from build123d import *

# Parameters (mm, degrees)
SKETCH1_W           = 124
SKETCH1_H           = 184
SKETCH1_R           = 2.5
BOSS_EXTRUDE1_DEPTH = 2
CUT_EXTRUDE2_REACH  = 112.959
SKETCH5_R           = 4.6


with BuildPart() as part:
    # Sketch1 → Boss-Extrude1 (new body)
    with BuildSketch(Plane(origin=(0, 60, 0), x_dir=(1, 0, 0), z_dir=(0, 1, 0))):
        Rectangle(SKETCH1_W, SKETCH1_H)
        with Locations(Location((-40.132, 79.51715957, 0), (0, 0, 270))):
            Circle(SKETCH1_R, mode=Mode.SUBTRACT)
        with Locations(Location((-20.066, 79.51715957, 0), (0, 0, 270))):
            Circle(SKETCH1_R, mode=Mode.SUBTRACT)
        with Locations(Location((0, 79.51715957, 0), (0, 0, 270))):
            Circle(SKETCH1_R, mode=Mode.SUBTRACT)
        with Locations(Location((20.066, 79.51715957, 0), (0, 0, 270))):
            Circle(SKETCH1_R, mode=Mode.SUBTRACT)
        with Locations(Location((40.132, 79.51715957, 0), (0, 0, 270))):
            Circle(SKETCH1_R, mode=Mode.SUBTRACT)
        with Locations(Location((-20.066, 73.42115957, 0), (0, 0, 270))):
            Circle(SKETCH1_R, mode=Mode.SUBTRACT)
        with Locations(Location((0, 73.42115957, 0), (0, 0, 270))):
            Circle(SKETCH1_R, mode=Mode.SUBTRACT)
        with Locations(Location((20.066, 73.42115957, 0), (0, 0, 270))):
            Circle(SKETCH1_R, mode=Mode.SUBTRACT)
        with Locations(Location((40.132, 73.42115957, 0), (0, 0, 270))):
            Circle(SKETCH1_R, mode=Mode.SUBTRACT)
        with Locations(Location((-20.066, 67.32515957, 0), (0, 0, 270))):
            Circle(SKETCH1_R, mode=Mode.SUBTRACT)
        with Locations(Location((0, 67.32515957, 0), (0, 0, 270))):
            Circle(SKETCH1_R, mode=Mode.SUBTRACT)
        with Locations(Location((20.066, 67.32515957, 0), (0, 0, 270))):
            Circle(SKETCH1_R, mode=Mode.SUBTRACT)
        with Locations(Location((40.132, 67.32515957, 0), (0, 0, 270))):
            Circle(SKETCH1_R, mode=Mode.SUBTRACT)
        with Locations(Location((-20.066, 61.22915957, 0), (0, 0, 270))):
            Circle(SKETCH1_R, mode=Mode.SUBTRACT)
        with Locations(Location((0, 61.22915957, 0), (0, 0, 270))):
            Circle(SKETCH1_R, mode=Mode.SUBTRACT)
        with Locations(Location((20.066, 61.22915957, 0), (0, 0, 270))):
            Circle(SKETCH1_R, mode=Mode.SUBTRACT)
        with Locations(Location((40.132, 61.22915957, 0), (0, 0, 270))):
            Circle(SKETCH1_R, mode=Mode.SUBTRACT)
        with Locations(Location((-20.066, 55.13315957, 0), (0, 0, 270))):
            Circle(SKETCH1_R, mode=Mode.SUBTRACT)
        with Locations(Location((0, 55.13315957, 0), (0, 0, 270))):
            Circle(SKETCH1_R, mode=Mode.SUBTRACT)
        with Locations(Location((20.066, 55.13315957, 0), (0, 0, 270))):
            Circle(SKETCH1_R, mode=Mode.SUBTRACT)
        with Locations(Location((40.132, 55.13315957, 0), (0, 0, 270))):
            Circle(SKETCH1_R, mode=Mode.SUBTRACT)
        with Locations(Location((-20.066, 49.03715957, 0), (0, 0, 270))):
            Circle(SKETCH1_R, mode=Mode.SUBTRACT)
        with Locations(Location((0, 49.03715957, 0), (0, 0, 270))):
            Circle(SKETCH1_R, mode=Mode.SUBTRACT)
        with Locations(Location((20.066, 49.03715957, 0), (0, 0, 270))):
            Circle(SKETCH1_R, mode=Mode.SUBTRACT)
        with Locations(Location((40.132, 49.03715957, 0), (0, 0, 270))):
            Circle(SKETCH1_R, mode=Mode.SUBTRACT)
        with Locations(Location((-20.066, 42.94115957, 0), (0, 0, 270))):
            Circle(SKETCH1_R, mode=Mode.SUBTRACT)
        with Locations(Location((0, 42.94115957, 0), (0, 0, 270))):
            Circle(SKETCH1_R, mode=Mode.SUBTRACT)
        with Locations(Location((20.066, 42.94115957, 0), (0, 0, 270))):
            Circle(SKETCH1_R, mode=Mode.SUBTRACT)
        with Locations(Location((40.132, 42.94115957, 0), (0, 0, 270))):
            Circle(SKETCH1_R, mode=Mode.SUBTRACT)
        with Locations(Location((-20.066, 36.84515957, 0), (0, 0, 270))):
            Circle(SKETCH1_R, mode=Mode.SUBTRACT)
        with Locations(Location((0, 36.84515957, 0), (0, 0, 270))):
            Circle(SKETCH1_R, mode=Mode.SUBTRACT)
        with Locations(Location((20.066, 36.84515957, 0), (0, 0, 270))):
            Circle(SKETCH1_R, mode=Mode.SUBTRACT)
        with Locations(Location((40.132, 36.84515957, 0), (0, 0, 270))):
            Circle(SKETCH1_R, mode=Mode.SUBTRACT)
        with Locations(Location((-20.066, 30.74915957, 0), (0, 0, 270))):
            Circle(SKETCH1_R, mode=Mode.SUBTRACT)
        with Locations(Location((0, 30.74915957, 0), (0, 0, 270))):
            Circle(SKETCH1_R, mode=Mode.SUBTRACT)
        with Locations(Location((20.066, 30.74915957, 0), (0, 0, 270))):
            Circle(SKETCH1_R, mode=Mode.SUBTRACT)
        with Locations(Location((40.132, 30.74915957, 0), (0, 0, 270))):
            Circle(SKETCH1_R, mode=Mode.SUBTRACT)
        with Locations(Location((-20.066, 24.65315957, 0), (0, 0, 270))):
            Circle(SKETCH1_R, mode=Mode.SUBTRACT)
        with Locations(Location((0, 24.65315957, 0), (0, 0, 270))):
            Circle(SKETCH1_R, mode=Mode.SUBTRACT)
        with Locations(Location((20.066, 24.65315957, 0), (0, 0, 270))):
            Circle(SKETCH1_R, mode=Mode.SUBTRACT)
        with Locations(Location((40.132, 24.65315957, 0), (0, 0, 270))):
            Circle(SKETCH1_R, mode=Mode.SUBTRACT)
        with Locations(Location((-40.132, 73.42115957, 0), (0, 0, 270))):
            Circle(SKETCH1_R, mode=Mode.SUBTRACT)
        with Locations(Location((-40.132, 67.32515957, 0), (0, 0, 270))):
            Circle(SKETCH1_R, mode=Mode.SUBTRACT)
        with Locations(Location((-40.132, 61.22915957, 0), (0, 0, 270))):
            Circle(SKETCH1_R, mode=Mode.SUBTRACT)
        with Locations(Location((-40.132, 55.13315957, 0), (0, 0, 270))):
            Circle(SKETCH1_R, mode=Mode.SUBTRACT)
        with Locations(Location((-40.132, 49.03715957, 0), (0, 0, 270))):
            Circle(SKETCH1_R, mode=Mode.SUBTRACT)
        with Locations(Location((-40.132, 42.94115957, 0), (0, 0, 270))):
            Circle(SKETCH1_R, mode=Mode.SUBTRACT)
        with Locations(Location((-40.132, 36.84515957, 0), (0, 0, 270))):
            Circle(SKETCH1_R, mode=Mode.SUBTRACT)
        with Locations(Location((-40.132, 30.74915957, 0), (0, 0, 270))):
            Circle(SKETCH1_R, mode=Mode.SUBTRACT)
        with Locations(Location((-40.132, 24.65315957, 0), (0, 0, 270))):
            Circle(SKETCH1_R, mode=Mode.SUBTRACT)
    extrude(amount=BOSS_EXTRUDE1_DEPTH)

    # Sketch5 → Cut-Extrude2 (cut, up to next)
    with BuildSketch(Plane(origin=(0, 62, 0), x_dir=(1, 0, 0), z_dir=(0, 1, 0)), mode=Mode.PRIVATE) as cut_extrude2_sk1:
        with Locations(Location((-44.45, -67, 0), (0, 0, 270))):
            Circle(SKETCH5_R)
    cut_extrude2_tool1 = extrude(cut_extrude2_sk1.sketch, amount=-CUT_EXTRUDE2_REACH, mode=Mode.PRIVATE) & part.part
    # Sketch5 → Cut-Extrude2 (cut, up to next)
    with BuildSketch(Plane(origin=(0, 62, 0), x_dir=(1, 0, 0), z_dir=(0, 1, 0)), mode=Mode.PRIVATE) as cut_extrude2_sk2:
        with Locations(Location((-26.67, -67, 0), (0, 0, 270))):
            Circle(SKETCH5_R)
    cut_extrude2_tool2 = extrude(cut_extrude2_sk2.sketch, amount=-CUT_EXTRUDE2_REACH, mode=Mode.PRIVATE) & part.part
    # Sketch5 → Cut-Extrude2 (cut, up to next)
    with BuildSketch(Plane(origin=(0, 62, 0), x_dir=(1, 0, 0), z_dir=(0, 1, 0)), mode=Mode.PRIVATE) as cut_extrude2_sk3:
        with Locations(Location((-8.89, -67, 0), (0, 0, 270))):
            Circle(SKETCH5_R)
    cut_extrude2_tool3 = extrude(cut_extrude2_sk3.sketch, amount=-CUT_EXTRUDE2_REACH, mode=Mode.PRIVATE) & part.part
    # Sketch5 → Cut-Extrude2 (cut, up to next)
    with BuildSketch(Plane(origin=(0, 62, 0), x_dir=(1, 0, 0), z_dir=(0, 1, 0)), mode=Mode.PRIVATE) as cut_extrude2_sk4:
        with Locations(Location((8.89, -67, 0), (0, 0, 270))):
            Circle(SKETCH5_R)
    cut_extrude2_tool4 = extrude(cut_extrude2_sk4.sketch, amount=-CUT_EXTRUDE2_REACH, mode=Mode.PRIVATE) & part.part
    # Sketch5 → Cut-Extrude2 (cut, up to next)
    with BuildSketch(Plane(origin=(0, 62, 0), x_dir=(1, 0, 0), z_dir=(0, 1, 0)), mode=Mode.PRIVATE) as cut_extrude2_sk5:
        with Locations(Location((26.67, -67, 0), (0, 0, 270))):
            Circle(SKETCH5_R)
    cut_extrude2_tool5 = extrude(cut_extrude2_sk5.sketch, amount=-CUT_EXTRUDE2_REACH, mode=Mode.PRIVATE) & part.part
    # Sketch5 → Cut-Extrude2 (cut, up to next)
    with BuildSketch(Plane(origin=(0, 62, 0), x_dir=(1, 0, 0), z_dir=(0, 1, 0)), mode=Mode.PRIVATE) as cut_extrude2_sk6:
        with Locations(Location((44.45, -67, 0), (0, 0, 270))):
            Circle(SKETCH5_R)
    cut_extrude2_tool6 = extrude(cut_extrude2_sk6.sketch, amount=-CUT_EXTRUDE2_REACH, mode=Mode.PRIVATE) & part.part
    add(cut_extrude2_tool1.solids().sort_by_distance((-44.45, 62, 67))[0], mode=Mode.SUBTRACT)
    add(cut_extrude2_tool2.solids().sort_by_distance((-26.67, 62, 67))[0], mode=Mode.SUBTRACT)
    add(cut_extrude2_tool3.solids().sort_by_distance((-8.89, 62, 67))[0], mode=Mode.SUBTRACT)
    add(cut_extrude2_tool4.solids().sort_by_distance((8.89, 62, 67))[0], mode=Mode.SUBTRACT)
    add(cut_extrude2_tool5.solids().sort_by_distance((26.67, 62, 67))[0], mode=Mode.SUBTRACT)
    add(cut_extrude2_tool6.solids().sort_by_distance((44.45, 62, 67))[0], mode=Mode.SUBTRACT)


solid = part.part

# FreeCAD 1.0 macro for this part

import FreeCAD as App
import Part
import Sketcher
from FreeCAD import Vector


def add_polygon(sketch, points):
    """Adds a closed chain of lines whose ends are joined by coincident constraints."""
    first, n = sketch.GeometryCount, len(points)
    for a, b in zip(points, points[1:] + points[:1]):
        sketch.addGeometry(Part.LineSegment(App.Vector(*a, 0), App.Vector(*b, 0)), False)
    for i in range(n):
        sketch.addConstraint(Sketcher.Constraint("Coincident", first + i, 2, first + (i + 1) % n, 1))

doc = App.newDocument("Part")
body = doc.addObject("PartDesign::Body", "Body")

sketch1 = doc.addObject("Sketcher::SketchObject", "Sketch")
body.addObject(sketch1)
sketch1.AttachmentSupport = (doc.XZ_Plane, [""])
sketch1.MapMode = "FlatFace"
sketch1.AttachmentOffset = App.Placement(Vector(0, 0, -60), App.Rotation())
add_polygon(sketch1, [(-62, -92), (-62, 92), (62, 92), (62, -92)])
sketch1.addGeometry(Part.Circle(Vector(-40.1, -24.7, 0), Vector(0, 0, 1), 2.5), False)
sketch1.addGeometry(Part.Circle(Vector(-40.1, -30.7, 0), Vector(0, 0, 1), 2.5), False)
sketch1.addGeometry(Part.Circle(Vector(-40.1, -36.8, 0), Vector(0, 0, 1), 2.5), False)
sketch1.addGeometry(Part.Circle(Vector(-20.1, -24.7, 0), Vector(0, 0, 1), 2.5), False)
sketch1.addGeometry(Part.Circle(Vector(0, -24.7, 0), Vector(0, 0, 1), 2.5), False)
sketch1.addGeometry(Part.Circle(Vector(-20.1, -30.7, 0), Vector(0, 0, 1), 2.5), False)
sketch1.addGeometry(Part.Circle(Vector(-20.1, -36.8, 0), Vector(0, 0, 1), 2.5), False)
sketch1.addGeometry(Part.Circle(Vector(0, -30.7, 0), Vector(0, 0, 1), 2.5), False)
sketch1.addGeometry(Part.Circle(Vector(0, -36.8, 0), Vector(0, 0, 1), 2.5), False)
sketch1.addGeometry(Part.Circle(Vector(-40.1, -42.9, 0), Vector(0, 0, 1), 2.5), False)
sketch1.addGeometry(Part.Circle(Vector(-40.1, -49, 0), Vector(0, 0, 1), 2.5), False)
sketch1.addGeometry(Part.Circle(Vector(-20.1, -42.9, 0), Vector(0, 0, 1), 2.5), False)
sketch1.addGeometry(Part.Circle(Vector(0, -42.9, 0), Vector(0, 0, 1), 2.5), False)
sketch1.addGeometry(Part.Circle(Vector(-20.1, -49, 0), Vector(0, 0, 1), 2.5), False)
sketch1.addGeometry(Part.Circle(Vector(0, -49, 0), Vector(0, 0, 1), 2.5), False)
sketch1.addGeometry(Part.Circle(Vector(20.1, -24.7, 0), Vector(0, 0, 1), 2.5), False)
sketch1.addGeometry(Part.Circle(Vector(20.1, -30.7, 0), Vector(0, 0, 1), 2.5), False)
sketch1.addGeometry(Part.Circle(Vector(20.1, -36.8, 0), Vector(0, 0, 1), 2.5), False)
sketch1.addGeometry(Part.Circle(Vector(40.1, -24.7, 0), Vector(0, 0, 1), 2.5), False)
sketch1.addGeometry(Part.Circle(Vector(40.1, -30.7, 0), Vector(0, 0, 1), 2.5), False)
sketch1.addGeometry(Part.Circle(Vector(40.1, -36.8, 0), Vector(0, 0, 1), 2.5), False)
sketch1.addGeometry(Part.Circle(Vector(20.1, -42.9, 0), Vector(0, 0, 1), 2.5), False)
sketch1.addGeometry(Part.Circle(Vector(20.1, -49, 0), Vector(0, 0, 1), 2.5), False)
sketch1.addGeometry(Part.Circle(Vector(40.1, -42.9, 0), Vector(0, 0, 1), 2.5), False)
sketch1.addGeometry(Part.Circle(Vector(40.1, -49, 0), Vector(0, 0, 1), 2.5), False)
sketch1.addGeometry(Part.Circle(Vector(-40.1, -55.1, 0), Vector(0, 0, 1), 2.5), False)
sketch1.addGeometry(Part.Circle(Vector(-40.1, -61.2, 0), Vector(0, 0, 1), 2.5), False)
sketch1.addGeometry(Part.Circle(Vector(-20.1, -55.1, 0), Vector(0, 0, 1), 2.5), False)
sketch1.addGeometry(Part.Circle(Vector(0, -55.1, 0), Vector(0, 0, 1), 2.5), False)
sketch1.addGeometry(Part.Circle(Vector(-20.1, -61.2, 0), Vector(0, 0, 1), 2.5), False)
sketch1.addGeometry(Part.Circle(Vector(0, -61.2, 0), Vector(0, 0, 1), 2.5), False)
sketch1.addGeometry(Part.Circle(Vector(-40.1, -67.3, 0), Vector(0, 0, 1), 2.5), False)
sketch1.addGeometry(Part.Circle(Vector(-40.1, -73.4, 0), Vector(0, 0, 1), 2.5), False)
sketch1.addGeometry(Part.Circle(Vector(-40.1, -79.5, 0), Vector(0, 0, 1), 2.5), False)
sketch1.addGeometry(Part.Circle(Vector(-20.1, -67.3, 0), Vector(0, 0, 1), 2.5), False)
sketch1.addGeometry(Part.Circle(Vector(-20.1, -73.4, 0), Vector(0, 0, 1), 2.5), False)
sketch1.addGeometry(Part.Circle(Vector(0, -67.3, 0), Vector(0, 0, 1), 2.5), False)
sketch1.addGeometry(Part.Circle(Vector(0, -73.4, 0), Vector(0, 0, 1), 2.5), False)
sketch1.addGeometry(Part.Circle(Vector(-20.1, -79.5, 0), Vector(0, 0, 1), 2.5), False)
sketch1.addGeometry(Part.Circle(Vector(0, -79.5, 0), Vector(0, 0, 1), 2.5), False)
sketch1.addGeometry(Part.Circle(Vector(20.1, -55.1, 0), Vector(0, 0, 1), 2.5), False)
sketch1.addGeometry(Part.Circle(Vector(20.1, -61.2, 0), Vector(0, 0, 1), 2.5), False)
sketch1.addGeometry(Part.Circle(Vector(40.1, -55.1, 0), Vector(0, 0, 1), 2.5), False)
sketch1.addGeometry(Part.Circle(Vector(40.1, -61.2, 0), Vector(0, 0, 1), 2.5), False)
sketch1.addGeometry(Part.Circle(Vector(20.1, -67.3, 0), Vector(0, 0, 1), 2.5), False)
sketch1.addGeometry(Part.Circle(Vector(20.1, -73.4, 0), Vector(0, 0, 1), 2.5), False)
sketch1.addGeometry(Part.Circle(Vector(20.1, -79.5, 0), Vector(0, 0, 1), 2.5), False)
sketch1.addGeometry(Part.Circle(Vector(40.1, -67.3, 0), Vector(0, 0, 1), 2.5), False)
sketch1.addGeometry(Part.Circle(Vector(40.1, -73.4, 0), Vector(0, 0, 1), 2.5), False)
sketch1.addGeometry(Part.Circle(Vector(40.1, -79.5, 0), Vector(0, 0, 1), 2.5), False)
sketch1.addConstraint(Sketcher.Constraint("Vertical", 0))
sketch1.addConstraint(Sketcher.Constraint("Horizontal", 1))
sketch1.addConstraint(Sketcher.Constraint("Vertical", 2))
sketch1.addConstraint(Sketcher.Constraint("Horizontal", 3))
sketch1.addConstraint(Sketcher.Constraint("Equal", 4, 5))
sketch1.addConstraint(Sketcher.Constraint("Equal", 5, 6))
sketch1.addConstraint(Sketcher.Constraint("Equal", 6, 7))
sketch1.addConstraint(Sketcher.Constraint("Equal", 7, 8))
sketch1.addConstraint(Sketcher.Constraint("Equal", 8, 9))
sketch1.addConstraint(Sketcher.Constraint("Equal", 9, 10))
sketch1.addConstraint(Sketcher.Constraint("Equal", 10, 11))
sketch1.addConstraint(Sketcher.Constraint("Equal", 11, 12))
sketch1.addConstraint(Sketcher.Constraint("Equal", 12, 13))
sketch1.addConstraint(Sketcher.Constraint("Equal", 13, 14))
sketch1.addConstraint(Sketcher.Constraint("Equal", 14, 15))
sketch1.addConstraint(Sketcher.Constraint("Equal", 15, 16))
sketch1.addConstraint(Sketcher.Constraint("Equal", 16, 17))
sketch1.addConstraint(Sketcher.Constraint("Equal", 17, 18))
sketch1.addConstraint(Sketcher.Constraint("Equal", 18, 19))
sketch1.addConstraint(Sketcher.Constraint("Equal", 19, 20))
sketch1.addConstraint(Sketcher.Constraint("Equal", 20, 21))
sketch1.addConstraint(Sketcher.Constraint("Equal", 21, 22))
sketch1.addConstraint(Sketcher.Constraint("Equal", 22, 23))
sketch1.addConstraint(Sketcher.Constraint("Equal", 23, 24))
sketch1.addConstraint(Sketcher.Constraint("Equal", 24, 25))
sketch1.addConstraint(Sketcher.Constraint("Equal", 25, 26))
sketch1.addConstraint(Sketcher.Constraint("Equal", 26, 27))
sketch1.addConstraint(Sketcher.Constraint("Equal", 27, 28))
sketch1.addConstraint(Sketcher.Constraint("Equal", 28, 29))
sketch1.addConstraint(Sketcher.Constraint("Equal", 29, 30))
sketch1.addConstraint(Sketcher.Constraint("Equal", 30, 31))
sketch1.addConstraint(Sketcher.Constraint("Equal", 31, 32))
sketch1.addConstraint(Sketcher.Constraint("Equal", 32, 33))
sketch1.addConstraint(Sketcher.Constraint("Equal", 33, 34))
sketch1.addConstraint(Sketcher.Constraint("Equal", 34, 35))
sketch1.addConstraint(Sketcher.Constraint("Equal", 35, 36))
sketch1.addConstraint(Sketcher.Constraint("Equal", 36, 37))
sketch1.addConstraint(Sketcher.Constraint("Equal", 37, 38))
sketch1.addConstraint(Sketcher.Constraint("Equal", 38, 39))
sketch1.addConstraint(Sketcher.Constraint("Equal", 39, 40))
sketch1.addConstraint(Sketcher.Constraint("Equal", 40, 41))
sketch1.addConstraint(Sketcher.Constraint("Equal", 41, 42))
sketch1.addConstraint(Sketcher.Constraint("Equal", 42, 43))
sketch1.addConstraint(Sketcher.Constraint("Equal", 43, 44))
sketch1.addConstraint(Sketcher.Constraint("Equal", 44, 45))
sketch1.addConstraint(Sketcher.Constraint("Equal", 45, 46))
sketch1.addConstraint(Sketcher.Constraint("Equal", 46, 47))
sketch1.addConstraint(Sketcher.Constraint("Equal", 47, 48))
sketch1.addConstraint(Sketcher.Constraint("Equal", 48, 49))
sketch1.addConstraint(Sketcher.Constraint("Equal", 49, 50))
sketch1.addConstraint(Sketcher.Constraint("Equal", 50, 51))
sketch1.addConstraint(Sketcher.Constraint("Equal", 51, 52))
sketch1.addConstraint(Sketcher.Constraint("Equal", 52, 53))
sketch1.addConstraint(Sketcher.Constraint("Symmetric", 0, 2, 2, 2, -1, 1))
sketch1.addConstraint(Sketcher.Constraint("Symmetric", 7, 3, 19, 3, -2))
sketch1.addConstraint(Sketcher.Constraint("Symmetric", 9, 3, 20, 3, -2))
sketch1.addConstraint(Sketcher.Constraint("Symmetric", 10, 3, 21, 3, -2))
sketch1.addConstraint(Sketcher.Constraint("Symmetric", 4, 3, 22, 3, -2))
sketch1.addConstraint(Sketcher.Constraint("Symmetric", 5, 3, 23, 3, -2))
sketch1.addConstraint(Sketcher.Constraint("Symmetric", 6, 3, 24, 3, -2))
sketch1.addConstraint(Sketcher.Constraint("Symmetric", 15, 3, 25, 3, -2))
sketch1.addConstraint(Sketcher.Constraint("Symmetric", 17, 3, 26, 3, -2))
sketch1.addConstraint(Sketcher.Constraint("Symmetric", 13, 3, 27, 3, -2))
sketch1.addConstraint(Sketcher.Constraint("Symmetric", 14, 3, 28, 3, -2))
sketch1.addConstraint(Sketcher.Constraint("Symmetric", 31, 3, 44, 3, -2))
sketch1.addConstraint(Sketcher.Constraint("Symmetric", 33, 3, 45, 3, -2))
sketch1.addConstraint(Sketcher.Constraint("Symmetric", 29, 3, 46, 3, -2))
sketch1.addConstraint(Sketcher.Constraint("Symmetric", 30, 3, 47, 3, -2))
sketch1.addConstraint(Sketcher.Constraint("Symmetric", 38, 3, 48, 3, -2))
sketch1.addConstraint(Sketcher.Constraint("Symmetric", 39, 3, 49, 3, -2))
sketch1.addConstraint(Sketcher.Constraint("Symmetric", 42, 3, 50, 3, -2))
sketch1.addConstraint(Sketcher.Constraint("Symmetric", 35, 3, 51, 3, -2))
sketch1.addConstraint(Sketcher.Constraint("Symmetric", 36, 3, 52, 3, -2))
sketch1.addConstraint(Sketcher.Constraint("Symmetric", 37, 3, 53, 3, -2))
sketch1.addConstraint(Sketcher.Constraint("PointOnObject", 8, 3, -2))
sketch1.addConstraint(Sketcher.Constraint("PointOnObject", 11, 3, -2))
sketch1.addConstraint(Sketcher.Constraint("PointOnObject", 12, 3, -2))
sketch1.addConstraint(Sketcher.Constraint("PointOnObject", 16, 3, -2))
sketch1.addConstraint(Sketcher.Constraint("PointOnObject", 18, 3, -2))
sketch1.addConstraint(Sketcher.Constraint("PointOnObject", 32, 3, -2))
sketch1.addConstraint(Sketcher.Constraint("PointOnObject", 34, 3, -2))
sketch1.addConstraint(Sketcher.Constraint("PointOnObject", 40, 3, -2))
sketch1.addConstraint(Sketcher.Constraint("PointOnObject", 41, 3, -2))
sketch1.addConstraint(Sketcher.Constraint("PointOnObject", 43, 3, -2))
sketch1.addConstraint(Sketcher.Constraint("Horizontal", 4, 3, 7, 3))
sketch1.addConstraint(Sketcher.Constraint("Horizontal", 7, 3, 8, 3))
sketch1.addConstraint(Sketcher.Constraint("Horizontal", 5, 3, 9, 3))
sketch1.addConstraint(Sketcher.Constraint("Horizontal", 6, 3, 10, 3))
sketch1.addConstraint(Sketcher.Constraint("Horizontal", 9, 3, 11, 3))
sketch1.addConstraint(Sketcher.Constraint("Horizontal", 10, 3, 12, 3))
sketch1.addConstraint(Sketcher.Constraint("Horizontal", 13, 3, 15, 3))
sketch1.addConstraint(Sketcher.Constraint("Horizontal", 15, 3, 16, 3))
sketch1.addConstraint(Sketcher.Constraint("Horizontal", 14, 3, 17, 3))
sketch1.addConstraint(Sketcher.Constraint("Horizontal", 17, 3, 18, 3))
sketch1.addConstraint(Sketcher.Constraint("Horizontal", 29, 3, 31, 3))
sketch1.addConstraint(Sketcher.Constraint("Horizontal", 31, 3, 32, 3))
sketch1.addConstraint(Sketcher.Constraint("Horizontal", 30, 3, 33, 3))
sketch1.addConstraint(Sketcher.Constraint("Horizontal", 33, 3, 34, 3))
sketch1.addConstraint(Sketcher.Constraint("Horizontal", 35, 3, 38, 3))
sketch1.addConstraint(Sketcher.Constraint("Horizontal", 36, 3, 39, 3))
sketch1.addConstraint(Sketcher.Constraint("Horizontal", 38, 3, 40, 3))
sketch1.addConstraint(Sketcher.Constraint("Horizontal", 39, 3, 41, 3))
sketch1.addConstraint(Sketcher.Constraint("Horizontal", 37, 3, 42, 3))
sketch1.addConstraint(Sketcher.Constraint("Horizontal", 42, 3, 43, 3))
sketch1.addConstraint(Sketcher.Constraint("Vertical", 4, 3, 5, 3))
sketch1.addConstraint(Sketcher.Constraint("Vertical", 5, 3, 6, 3))
sketch1.addConstraint(Sketcher.Constraint("Vertical", 7, 3, 9, 3))
sketch1.addConstraint(Sketcher.Constraint("Vertical", 9, 3, 10, 3))
sketch1.addConstraint(Sketcher.Constraint("Vertical", 6, 3, 13, 3))
sketch1.addConstraint(Sketcher.Constraint("Vertical", 13, 3, 14, 3))
sketch1.addConstraint(Sketcher.Constraint("Vertical", 10, 3, 15, 3))
sketch1.addConstraint(Sketcher.Constraint("Vertical", 15, 3, 17, 3))
sketch1.addConstraint(Sketcher.Constraint("Vertical", 14, 3, 29, 3))
sketch1.addConstraint(Sketcher.Constraint("Vertical", 29, 3, 30, 3))
sketch1.addConstraint(Sketcher.Constraint("Vertical", 17, 3, 31, 3))
sketch1.addConstraint(Sketcher.Constraint("Vertical", 31, 3, 33, 3))
sketch1.addConstraint(Sketcher.Constraint("Vertical", 30, 3, 35, 3))
sketch1.addConstraint(Sketcher.Constraint("Vertical", 35, 3, 36, 3))
sketch1.addConstraint(Sketcher.Constraint("Vertical", 36, 3, 37, 3))
sketch1.addConstraint(Sketcher.Constraint("Vertical", 33, 3, 38, 3))
sketch1.addConstraint(Sketcher.Constraint("Vertical", 38, 3, 39, 3))
sketch1.addConstraint(Sketcher.Constraint("Vertical", 39, 3, 42, 3))
sketch1.addConstraint(Sketcher.Constraint("Diameter", 4, 5.0))
sketch1.addConstraint(Sketcher.Constraint("DistanceX", 1, 1, 1, 2, 124.0))
sketch1.addConstraint(Sketcher.Constraint("DistanceY", 0, 1, 0, 2, 184.0))
sketch1.addConstraint(Sketcher.Constraint("DistanceX", 4, 3, -1, 1, 40.132))
sketch1.addConstraint(Sketcher.Constraint("DistanceX", 7, 3, -1, 1, 20.066))
sketch1.addConstraint(Sketcher.Constraint("DistanceY", 5, 3, 4, 3, 6.096))
sketch1.addConstraint(Sketcher.Constraint("DistanceY", 6, 3, 5, 3, 6.096))
sketch1.addConstraint(Sketcher.Constraint("DistanceY", 13, 3, 6, 3, 6.096))
sketch1.addConstraint(Sketcher.Constraint("DistanceY", 14, 3, 13, 3, 6.096))
sketch1.addConstraint(Sketcher.Constraint("DistanceY", 29, 3, 14, 3, 6.096))
sketch1.addConstraint(Sketcher.Constraint("DistanceY", 30, 3, 29, 3, 6.096))
sketch1.addConstraint(Sketcher.Constraint("DistanceY", 35, 3, 30, 3, 6.096))
sketch1.addConstraint(Sketcher.Constraint("DistanceY", 36, 3, 35, 3, 6.096))
sketch1.addConstraint(Sketcher.Constraint("DistanceY", 37, 3, 36, 3, 6.096))
sketch1.addConstraint(Sketcher.Constraint("DistanceY", 4, 3, -1, 1, 24.65316))
pad1 = doc.addObject("PartDesign::Pad", "Pad")
body.addObject(pad1)
pad1.Profile = sketch1
pad1.Length = 2
pad1.Reversed = True

sketch2 = doc.addObject("Sketcher::SketchObject", "Sketch001")
body.addObject(sketch2)
sketch2.AttachmentSupport = (doc.XZ_Plane, [""])
sketch2.MapMode = "FlatFace"
sketch2.AttachmentOffset = App.Placement(Vector(0, 0, -62), App.Rotation())
sketch2.addGeometry(Part.Circle(Vector(-44.5, 67, 0), Vector(0, 0, 1), 4.6), False)
sketch2.addConstraint(Sketcher.Constraint("Diameter", 0, 9.2))
sketch2.addConstraint(Sketcher.Constraint("DistanceY", -1, 1, 0, 3, 67.0))
sketch2.addConstraint(Sketcher.Constraint("DistanceX", 0, 3, -1, 1, 44.45))
pocket1 = doc.addObject("PartDesign::Pocket", "Pocket")
body.addObject(pocket1)
pocket1.Profile = sketch2
pocket1.Type = "UpToFirst"
pocket1.Reversed = True

sketch3 = doc.addObject("Sketcher::SketchObject", "Sketch002")
body.addObject(sketch3)
sketch3.AttachmentSupport = (doc.XZ_Plane, [""])
sketch3.MapMode = "FlatFace"
sketch3.AttachmentOffset = App.Placement(Vector(0, 0, -62), App.Rotation())
sketch3.addGeometry(Part.Circle(Vector(-26.7, 67, 0), Vector(0, 0, 1), 4.6), False)
sketch3.addConstraint(Sketcher.Constraint("Diameter", 0, 9.2))
sketch3.addConstraint(Sketcher.Constraint("DistanceY", -1, 1, 0, 3, 67.0))
sketch3.addConstraint(Sketcher.Constraint("DistanceX", 0, 3, -1, 1, 26.67))
pocket2 = doc.addObject("PartDesign::Pocket", "Pocket001")
body.addObject(pocket2)
pocket2.Profile = sketch3
pocket2.Type = "UpToFirst"
pocket2.Reversed = True

sketch4 = doc.addObject("Sketcher::SketchObject", "Sketch003")
body.addObject(sketch4)
sketch4.AttachmentSupport = (doc.XZ_Plane, [""])
sketch4.MapMode = "FlatFace"
sketch4.AttachmentOffset = App.Placement(Vector(0, 0, -62), App.Rotation())
sketch4.addGeometry(Part.Circle(Vector(-8.9, 67, 0), Vector(0, 0, 1), 4.6), False)
sketch4.addConstraint(Sketcher.Constraint("Diameter", 0, 9.2))
sketch4.addConstraint(Sketcher.Constraint("DistanceY", -1, 1, 0, 3, 67.0))
sketch4.addConstraint(Sketcher.Constraint("DistanceX", 0, 3, -1, 1, 8.89))
pocket3 = doc.addObject("PartDesign::Pocket", "Pocket002")
body.addObject(pocket3)
pocket3.Profile = sketch4
pocket3.Type = "UpToFirst"
pocket3.Reversed = True

sketch5 = doc.addObject("Sketcher::SketchObject", "Sketch004")
body.addObject(sketch5)
sketch5.AttachmentSupport = (doc.XZ_Plane, [""])
sketch5.MapMode = "FlatFace"
sketch5.AttachmentOffset = App.Placement(Vector(0, 0, -62), App.Rotation())
sketch5.addGeometry(Part.Circle(Vector(8.9, 67, 0), Vector(0, 0, 1), 4.6), False)
sketch5.addConstraint(Sketcher.Constraint("Diameter", 0, 9.2))
sketch5.addConstraint(Sketcher.Constraint("DistanceY", -1, 1, 0, 3, 67.0))
sketch5.addConstraint(Sketcher.Constraint("DistanceX", -1, 1, 0, 3, 8.89))
pocket4 = doc.addObject("PartDesign::Pocket", "Pocket003")
body.addObject(pocket4)
pocket4.Profile = sketch5
pocket4.Type = "UpToFirst"
pocket4.Reversed = True

sketch6 = doc.addObject("Sketcher::SketchObject", "Sketch005")
body.addObject(sketch6)
sketch6.AttachmentSupport = (doc.XZ_Plane, [""])
sketch6.MapMode = "FlatFace"
sketch6.AttachmentOffset = App.Placement(Vector(0, 0, -62), App.Rotation())
sketch6.addGeometry(Part.Circle(Vector(26.7, 67, 0), Vector(0, 0, 1), 4.6), False)
sketch6.addConstraint(Sketcher.Constraint("Diameter", 0, 9.2))
sketch6.addConstraint(Sketcher.Constraint("DistanceY", -1, 1, 0, 3, 67.0))
sketch6.addConstraint(Sketcher.Constraint("DistanceX", -1, 1, 0, 3, 26.67))
pocket5 = doc.addObject("PartDesign::Pocket", "Pocket004")
body.addObject(pocket5)
pocket5.Profile = sketch6
pocket5.Type = "UpToFirst"
pocket5.Reversed = True

sketch7 = doc.addObject("Sketcher::SketchObject", "Sketch006")
body.addObject(sketch7)
sketch7.AttachmentSupport = (doc.XZ_Plane, [""])
sketch7.MapMode = "FlatFace"
sketch7.AttachmentOffset = App.Placement(Vector(0, 0, -62), App.Rotation())
sketch7.addGeometry(Part.Circle(Vector(44.5, 67, 0), Vector(0, 0, 1), 4.6), False)
sketch7.addConstraint(Sketcher.Constraint("Diameter", 0, 9.2))
sketch7.addConstraint(Sketcher.Constraint("DistanceY", -1, 1, 0, 3, 67.0))
sketch7.addConstraint(Sketcher.Constraint("DistanceX", -1, 1, 0, 3, 44.45))
pocket6 = doc.addObject("PartDesign::Pocket", "Pocket005")
body.addObject(pocket6)
pocket6.Profile = sketch7
pocket6.Type = "UpToFirst"
pocket6.Reversed = True

doc.recompute()
